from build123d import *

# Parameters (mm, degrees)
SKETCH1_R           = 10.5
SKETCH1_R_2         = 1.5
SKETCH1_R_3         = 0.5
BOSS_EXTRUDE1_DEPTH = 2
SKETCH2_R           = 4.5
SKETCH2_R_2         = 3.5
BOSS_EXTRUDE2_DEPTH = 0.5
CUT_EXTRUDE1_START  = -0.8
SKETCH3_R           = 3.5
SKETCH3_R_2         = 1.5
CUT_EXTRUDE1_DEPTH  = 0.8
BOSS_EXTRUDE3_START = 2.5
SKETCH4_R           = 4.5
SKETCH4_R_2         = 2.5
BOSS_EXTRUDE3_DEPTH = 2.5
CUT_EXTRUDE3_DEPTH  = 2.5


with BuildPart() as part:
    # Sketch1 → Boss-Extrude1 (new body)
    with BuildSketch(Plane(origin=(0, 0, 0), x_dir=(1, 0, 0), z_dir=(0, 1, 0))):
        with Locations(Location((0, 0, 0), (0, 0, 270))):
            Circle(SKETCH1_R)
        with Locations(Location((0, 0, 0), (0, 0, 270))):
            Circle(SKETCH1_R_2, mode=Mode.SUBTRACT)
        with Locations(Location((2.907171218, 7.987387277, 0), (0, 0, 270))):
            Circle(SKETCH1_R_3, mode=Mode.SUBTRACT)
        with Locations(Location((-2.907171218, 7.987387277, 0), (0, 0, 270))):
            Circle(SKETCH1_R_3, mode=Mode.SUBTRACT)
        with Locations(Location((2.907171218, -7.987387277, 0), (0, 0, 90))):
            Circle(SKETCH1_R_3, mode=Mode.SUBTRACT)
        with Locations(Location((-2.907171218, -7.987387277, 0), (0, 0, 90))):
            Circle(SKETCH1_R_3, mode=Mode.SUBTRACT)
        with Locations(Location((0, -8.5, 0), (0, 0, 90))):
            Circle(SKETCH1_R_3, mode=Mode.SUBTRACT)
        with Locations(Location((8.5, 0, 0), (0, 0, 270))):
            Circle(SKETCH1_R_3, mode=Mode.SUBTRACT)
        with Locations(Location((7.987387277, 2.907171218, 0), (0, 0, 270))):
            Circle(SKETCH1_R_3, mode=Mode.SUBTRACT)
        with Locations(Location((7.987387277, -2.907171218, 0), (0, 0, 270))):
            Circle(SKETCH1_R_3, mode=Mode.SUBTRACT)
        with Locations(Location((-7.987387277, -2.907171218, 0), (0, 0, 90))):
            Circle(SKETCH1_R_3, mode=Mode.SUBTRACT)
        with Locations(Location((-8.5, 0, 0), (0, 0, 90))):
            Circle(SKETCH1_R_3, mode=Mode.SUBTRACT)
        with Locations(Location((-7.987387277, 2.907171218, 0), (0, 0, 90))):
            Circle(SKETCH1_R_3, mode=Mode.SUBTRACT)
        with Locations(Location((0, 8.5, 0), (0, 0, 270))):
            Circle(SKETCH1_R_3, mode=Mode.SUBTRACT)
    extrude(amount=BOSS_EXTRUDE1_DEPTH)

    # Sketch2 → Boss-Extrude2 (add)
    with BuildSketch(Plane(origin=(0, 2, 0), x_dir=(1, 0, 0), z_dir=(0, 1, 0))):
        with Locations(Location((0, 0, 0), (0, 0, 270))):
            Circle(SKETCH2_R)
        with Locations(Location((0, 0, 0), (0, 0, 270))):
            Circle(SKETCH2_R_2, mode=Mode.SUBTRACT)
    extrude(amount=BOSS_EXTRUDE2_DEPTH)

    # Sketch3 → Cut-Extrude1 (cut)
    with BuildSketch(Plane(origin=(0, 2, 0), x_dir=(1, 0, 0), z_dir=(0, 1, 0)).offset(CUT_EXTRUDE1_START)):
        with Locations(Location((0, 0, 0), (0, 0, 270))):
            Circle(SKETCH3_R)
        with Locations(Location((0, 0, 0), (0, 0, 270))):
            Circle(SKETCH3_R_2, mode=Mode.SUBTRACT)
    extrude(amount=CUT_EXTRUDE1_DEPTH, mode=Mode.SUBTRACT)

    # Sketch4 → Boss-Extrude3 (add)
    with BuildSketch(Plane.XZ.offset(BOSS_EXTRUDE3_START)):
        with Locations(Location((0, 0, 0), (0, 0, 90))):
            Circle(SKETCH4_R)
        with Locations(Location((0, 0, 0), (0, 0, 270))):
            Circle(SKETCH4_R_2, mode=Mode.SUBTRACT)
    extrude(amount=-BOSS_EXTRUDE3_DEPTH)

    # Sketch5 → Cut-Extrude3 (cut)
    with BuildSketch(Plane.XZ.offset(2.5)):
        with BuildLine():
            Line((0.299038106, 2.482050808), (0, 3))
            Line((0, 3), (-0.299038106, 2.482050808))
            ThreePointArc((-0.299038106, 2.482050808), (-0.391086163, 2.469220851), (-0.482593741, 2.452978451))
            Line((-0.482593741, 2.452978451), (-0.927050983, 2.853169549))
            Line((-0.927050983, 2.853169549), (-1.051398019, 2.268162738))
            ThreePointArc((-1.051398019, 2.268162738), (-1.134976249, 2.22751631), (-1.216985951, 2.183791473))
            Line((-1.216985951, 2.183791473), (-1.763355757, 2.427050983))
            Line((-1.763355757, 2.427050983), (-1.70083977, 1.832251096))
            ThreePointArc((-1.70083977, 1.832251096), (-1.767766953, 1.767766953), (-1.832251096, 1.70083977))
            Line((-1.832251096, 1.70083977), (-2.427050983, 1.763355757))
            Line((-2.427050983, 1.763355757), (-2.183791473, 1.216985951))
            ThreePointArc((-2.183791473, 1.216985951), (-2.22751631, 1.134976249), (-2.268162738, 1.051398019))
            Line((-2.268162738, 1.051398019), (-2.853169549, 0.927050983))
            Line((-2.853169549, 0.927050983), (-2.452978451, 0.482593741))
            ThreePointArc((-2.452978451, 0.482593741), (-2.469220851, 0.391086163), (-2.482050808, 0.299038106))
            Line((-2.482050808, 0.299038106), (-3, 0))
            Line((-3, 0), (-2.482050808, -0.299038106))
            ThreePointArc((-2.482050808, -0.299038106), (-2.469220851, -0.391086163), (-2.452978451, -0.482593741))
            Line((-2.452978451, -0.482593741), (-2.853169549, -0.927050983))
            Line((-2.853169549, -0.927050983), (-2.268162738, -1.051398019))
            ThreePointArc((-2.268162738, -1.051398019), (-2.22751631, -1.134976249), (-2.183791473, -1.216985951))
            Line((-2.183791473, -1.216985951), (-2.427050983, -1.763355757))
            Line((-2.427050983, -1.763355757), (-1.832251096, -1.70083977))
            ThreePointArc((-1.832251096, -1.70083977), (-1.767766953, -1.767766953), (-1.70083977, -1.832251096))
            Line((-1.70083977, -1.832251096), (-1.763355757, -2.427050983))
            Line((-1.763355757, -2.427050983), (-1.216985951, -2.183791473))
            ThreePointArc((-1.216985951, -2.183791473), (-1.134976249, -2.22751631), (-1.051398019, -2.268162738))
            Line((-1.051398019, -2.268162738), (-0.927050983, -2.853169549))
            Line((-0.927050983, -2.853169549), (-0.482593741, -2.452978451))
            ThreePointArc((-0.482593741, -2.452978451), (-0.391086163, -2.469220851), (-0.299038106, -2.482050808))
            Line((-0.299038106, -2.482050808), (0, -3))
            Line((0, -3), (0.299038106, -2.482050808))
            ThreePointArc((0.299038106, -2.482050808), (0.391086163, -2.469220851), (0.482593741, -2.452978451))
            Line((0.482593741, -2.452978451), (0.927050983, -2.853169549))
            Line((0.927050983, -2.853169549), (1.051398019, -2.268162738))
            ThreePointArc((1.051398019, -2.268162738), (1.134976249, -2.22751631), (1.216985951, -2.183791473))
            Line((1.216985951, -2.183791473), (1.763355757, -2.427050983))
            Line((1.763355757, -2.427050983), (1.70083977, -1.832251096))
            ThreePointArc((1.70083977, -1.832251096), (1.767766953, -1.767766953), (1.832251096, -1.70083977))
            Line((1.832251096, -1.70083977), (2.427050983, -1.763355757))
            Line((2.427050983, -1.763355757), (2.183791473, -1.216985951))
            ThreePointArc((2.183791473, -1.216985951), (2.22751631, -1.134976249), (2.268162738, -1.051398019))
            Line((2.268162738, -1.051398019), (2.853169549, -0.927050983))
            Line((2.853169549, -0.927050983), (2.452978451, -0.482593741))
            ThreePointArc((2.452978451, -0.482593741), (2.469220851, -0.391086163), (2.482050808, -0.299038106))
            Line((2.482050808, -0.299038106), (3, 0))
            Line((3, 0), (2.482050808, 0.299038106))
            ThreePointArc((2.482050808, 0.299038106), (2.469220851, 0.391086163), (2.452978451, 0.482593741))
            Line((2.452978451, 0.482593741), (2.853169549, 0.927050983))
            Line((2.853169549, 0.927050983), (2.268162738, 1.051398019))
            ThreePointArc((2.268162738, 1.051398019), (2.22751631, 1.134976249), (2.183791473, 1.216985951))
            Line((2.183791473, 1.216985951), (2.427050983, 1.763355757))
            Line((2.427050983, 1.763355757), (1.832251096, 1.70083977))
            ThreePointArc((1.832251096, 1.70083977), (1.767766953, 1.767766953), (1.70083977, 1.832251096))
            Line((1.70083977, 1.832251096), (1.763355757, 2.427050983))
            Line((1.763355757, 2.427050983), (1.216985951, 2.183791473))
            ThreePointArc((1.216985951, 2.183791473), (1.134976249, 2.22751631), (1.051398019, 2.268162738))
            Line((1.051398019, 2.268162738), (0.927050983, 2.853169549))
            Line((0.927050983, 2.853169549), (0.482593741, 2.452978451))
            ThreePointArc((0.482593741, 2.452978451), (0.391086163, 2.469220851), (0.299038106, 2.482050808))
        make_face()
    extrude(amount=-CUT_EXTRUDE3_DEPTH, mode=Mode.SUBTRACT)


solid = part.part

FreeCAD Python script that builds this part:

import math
import FreeCAD as App
import Part
import Sketcher
Q = App.Units.Quantity

doc = App.newDocument("Part")
params = doc.addObject("Spreadsheet::Sheet", "Params")
for row, (alias, value) in enumerate([
    ("sketch1_diameter", "21 mm"),
    ("sketch1_diameter2", "1 mm"),
    ("sketch1_diameter3", "3 mm"),
    ("pad1_length", "2 mm"),
    ("sketch2_diameter", "9 mm"),
    ("sketch2_diameter2", "7 mm"),
    ("pad2_length", "0.5 mm"),
    ("sketch3_diameter", "7 mm"),
    ("sketch3_diameter2", "3 mm"),
    ("pocket1_length", "0.8 mm"),
    ("sketch4_diameter", "9 mm"),
    ("sketch4_diameter2", "5 mm"),
    ("pad3_length", "2.5 mm"),
    ("sketch5_radius", "2.500001 mm"),
    ("pocket2_length", "2.5 mm"),
], start=1):
    params.set(f"A{row}", alias)
    params.set(f"B{row}", "=" + value)
    params.setAlias(f"B{row}", alias)

body = doc.addObject("PartDesign::Body", "Body")

sketch1 = doc.addObject("Sketcher::SketchObject", "Sketch")
body.addObject(sketch1)
sketch1.AttachmentSupport = (doc.XZ_Plane, [""])
sketch1.MapMode = "FlatFace"
sketch1.addGeometry([
    Part.Circle(App.Vector(0, 0, 0), App.Vector(0, 0, 1), 10.5),
    Part.Circle(App.Vector(-8, -2.9, 0), App.Vector(0, 0, 1), 0.5),
    Part.Circle(App.Vector(-2.9, -8, 0), App.Vector(0, 0, 1), 0.5),
    Part.Circle(App.Vector(0, -8.5, 0), App.Vector(0, 0, 1), 0.5),
    Part.Circle(App.Vector(-8.5, 0, 0), App.Vector(0, 0, 1), 0.5),
    Part.Circle(App.Vector(-8, 2.9, 0), App.Vector(0, 0, 1), 0.5),
    Part.Circle(App.Vector(-2.9, 8, 0), App.Vector(0, 0, 1), 0.5),
    Part.Circle(App.Vector(2.9, -8, 0), App.Vector(0, 0, 1), 0.5),
    Part.Circle(App.Vector(8, -2.9, 0), App.Vector(0, 0, 1), 0.5),
    Part.Circle(App.Vector(8.5, 0, 0), App.Vector(0, 0, 1), 0.5),
    Part.Circle(App.Vector(0, 0, 0), App.Vector(0, 0, 1), 1.5),
    Part.Circle(App.Vector(0, 8.5, 0), App.Vector(0, 0, 1), 0.5),
    Part.Circle(App.Vector(2.9, 8, 0), App.Vector(0, 0, 1), 0.5),
    Part.Circle(App.Vector(8, 2.9, 0), App.Vector(0, 0, 1), 0.5),
], False)
sketch1.addConstraint([
    Sketcher.Constraint("Coincident", 0, 3, -1, 1),
    Sketcher.Constraint("Coincident", 10, 3, -1, 1),
    Sketcher.Constraint("Equal", 1, 2),
    Sketcher.Constraint("Equal", 2, 3),
    Sketcher.Constraint("Equal", 3, 4),
    Sketcher.Constraint("Equal", 4, 5),
    Sketcher.Constraint("Equal", 5, 6),
    Sketcher.Constraint("Equal", 6, 7),
    Sketcher.Constraint("Equal", 7, 8),
    Sketcher.Constraint("Equal", 8, 9),
    Sketcher.Constraint("Equal", 9, 11),
    Sketcher.Constraint("Equal", 11, 12),
    Sketcher.Constraint("Equal", 12, 13),
    Sketcher.Constraint("Symmetric", 6, 3, 7, 3, -1, 1),
    Sketcher.Constraint("Symmetric", 5, 3, 8, 3, -1, 1),
    Sketcher.Constraint("Symmetric", 4, 3, 9, 3, -1, 1),
    Sketcher.Constraint("Symmetric", 3, 3, 11, 3, -1, 1),
    Sketcher.Constraint("Symmetric", 2, 3, 12, 3, -1, 1),
    Sketcher.Constraint("Symmetric", 1, 3, 13, 3, -1, 1),
    Sketcher.Constraint("Symmetric", 2, 3, 7, 3, -2),
    Sketcher.Constraint("Symmetric", 1, 3, 8, 3, -2),
    Sketcher.Constraint("PointOnObject", 3, 3, -2),
    Sketcher.Constraint("PointOnObject", 4, 3, -1),
    Sketcher.Constraint("Diameter", 0, 21.0),
    Sketcher.Constraint("Diameter", 1, 1.0),
    Sketcher.Constraint("Diameter", 10, 3.0),
    Sketcher.Constraint("DistanceY", 3, 3, -1, 1, 8.5),
    Sketcher.Constraint("DistanceX", 4, 3, -1, 1, 8.5),
    Sketcher.Constraint("DistanceY", 1, 3, -1, 1, 2.907171),
    Sketcher.Constraint("DistanceX", 2, 3, -1, 1, 2.907171),
    Sketcher.Constraint("DistanceY", 2, 3, 5, 3, 10.894558),
    Sketcher.Constraint("DistanceX", 1, 3, 7, 3, 10.894558),
])
sketch1.setExpression("Constraints[23]", "Params.sketch1_diameter")
sketch1.setExpression("Constraints[24]", "Params.sketch1_diameter2")
sketch1.setExpression("Constraints[25]", "Params.sketch1_diameter3")
pad1 = doc.addObject("PartDesign::Pad", "Pad")
body.addObject(pad1)
pad1.Profile = sketch1
pad1.setExpression("Length", "Params.pad1_length")
pad1.Reversed = True

sketch2 = doc.addObject("Sketcher::SketchObject", "Sketch001")
body.addObject(sketch2)
sketch2.AttachmentSupport = (doc.XZ_Plane, [""])
sketch2.MapMode = "FlatFace"
sketch2.AttachmentOffset = App.Placement(App.Vector(0, 0, -2), App.Rotation())
sketch2.addGeometry([
    Part.Circle(App.Vector(0, 0, 0), App.Vector(0, 0, 1), 4.5),
    Part.Circle(App.Vector(0, 0, 0), App.Vector(0, 0, 1), 3.5),
], False)
sketch2.addConstraint([
    Sketcher.Constraint("Coincident", 0, 3, -1, 1),
    Sketcher.Constraint("Coincident", 1, 3, -1, 1),
    Sketcher.Constraint("Diameter", 0, 9.0),
    Sketcher.Constraint("Diameter", 1, 7.0),
])
sketch2.setExpression("Constraints[2]", "Params.sketch2_diameter")
sketch2.setExpression("Constraints[3]", "Params.sketch2_diameter2")
pad2 = doc.addObject("PartDesign::Pad", "Pad001")
body.addObject(pad2)
pad2.Profile = sketch2
pad2.setExpression("Length", "Params.pad2_length")
pad2.Reversed = True

sketch3 = doc.addObject("Sketcher::SketchObject", "Sketch002")
body.addObject(sketch3)
sketch3.AttachmentSupport = (doc.XZ_Plane, [""])
sketch3.MapMode = "FlatFace"
sketch3.AttachmentOffset = App.Placement(App.Vector(0, 0, -1.2), App.Rotation())
sketch3.addGeometry([
    Part.Circle(App.Vector(0, 0, 0), App.Vector(0, 0, 1), 3.5),
    Part.Circle(App.Vector(0, 0, 0), App.Vector(0, 0, 1), 1.5),
], False)
sketch3.addConstraint([
    Sketcher.Constraint("Coincident", 0, 3, -1, 1),
    Sketcher.Constraint("Coincident", 1, 3, -1, 1),
    Sketcher.Constraint("Diameter", 0, 7.0),
    Sketcher.Constraint("Diameter", 1, 3.0),
])
sketch3.setExpression("Constraints[2]", "Params.sketch3_diameter")
sketch3.setExpression("Constraints[3]", "Params.sketch3_diameter2")
pocket1 = doc.addObject("PartDesign::Pocket", "Pocket")
body.addObject(pocket1)
pocket1.Profile = sketch3
pocket1.setExpression("Length", "Params.pocket1_length")

sketch4 = doc.addObject("Sketcher::SketchObject", "Sketch003")
body.addObject(sketch4)
sketch4.AttachmentSupport = (doc.XZ_Plane, [""])
sketch4.MapMode = "FlatFace"
sketch4.AttachmentOffset = App.Placement(App.Vector(0, 0, 2.5), App.Rotation())
sketch4.addGeometry([
    Part.Circle(App.Vector(0, 0, 0), App.Vector(0, 0, 1), 4.5),
    Part.Circle(App.Vector(0, 0, 0), App.Vector(0, 0, 1), 2.5),
], False)
sketch4.addConstraint([
    Sketcher.Constraint("Coincident", 0, 3, -1, 1),
    Sketcher.Constraint("Coincident", 1, 3, -1, 1),
    Sketcher.Constraint("Diameter", 0, 9.0),
    Sketcher.Constraint("Diameter", 1, 5.0),
])
sketch4.setExpression("Constraints[2]", "Params.sketch4_diameter")
sketch4.setExpression("Constraints[3]", "Params.sketch4_diameter2")
pad3 = doc.addObject("PartDesign::Pad", "Pad002")
body.addObject(pad3)
pad3.Profile = sketch4
pad3.setExpression("Length", "Params.pad3_length")
pad3.Reversed = True

sketch5 = doc.addObject("Sketcher::SketchObject", "Sketch004")
body.addObject(sketch5)
sketch5.AttachmentSupport = (doc.XZ_Plane, [""])
sketch5.MapMode = "FlatFace"
sketch5.AttachmentOffset = App.Placement(App.Vector(0, 0, 2.5), App.Rotation())
sketch5.addGeometry([
    Part.LineSegment(App.Vector(0.3, 2.48, 0), App.Vector(0, 3, 0)),
    Part.LineSegment(App.Vector(0, 3, 0), App.Vector(-0.3, 2.48, 0)),
    Part.ArcOfCircle(Part.Circle(App.Vector(0, 0, 0), App.Vector(0, 0, 1), 2.5), math.radians(96.87), math.radians(101.13)),
    Part.LineSegment(App.Vector(-0.48, 2.45, 0), App.Vector(-0.93, 2.85, 0)),
    Part.LineSegment(App.Vector(-0.93, 2.85, 0), App.Vector(-1.05, 2.27, 0)),
    Part.ArcOfCircle(Part.Circle(App.Vector(0, 0, 0), App.Vector(0, 0, 1), 2.5), math.radians(114.87), math.radians(119.13)),
    Part.LineSegment(App.Vector(-1.22, 2.18, 0), App.Vector(-1.76, 2.43, 0)),
    Part.LineSegment(App.Vector(-1.76, 2.43, 0), App.Vector(-1.7, 1.83, 0)),
    Part.ArcOfCircle(Part.Circle(App.Vector(0, 0, 0), App.Vector(0, 0, 1), 2.5), math.radians(132.87), math.radians(137.13)),
    Part.LineSegment(App.Vector(-1.83, 1.7, 0), App.Vector(-2.43, 1.76, 0)),
    Part.LineSegment(App.Vector(-2.43, 1.76, 0), App.Vector(-2.18, 1.22, 0)),
    Part.ArcOfCircle(Part.Circle(App.Vector(0, 0, 0), App.Vector(0, 0, 1), 2.5), math.radians(150.87), math.radians(155.13)),
    Part.LineSegment(App.Vector(-2.27, 1.05, 0), App.Vector(-2.85, 0.93, 0)),
    Part.LineSegment(App.Vector(-2.85, 0.93, 0), App.Vector(-2.45, 0.48, 0)),
    Part.ArcOfCircle(Part.Circle(App.Vector(0, 0, 0), App.Vector(0, 0, 1), 2.5), math.radians(168.87), math.radians(173.13)),
    Part.LineSegment(App.Vector(-2.48, 0.3, 0), App.Vector(-3, 0, 0)),
    Part.LineSegment(App.Vector(-3, 0, 0), App.Vector(-2.48, -0.3, 0)),
    Part.ArcOfCircle(Part.Circle(App.Vector(0, 0, 0), App.Vector(0, 0, 1), 2.5), math.radians(-173.13), math.radians(-168.87)),
    Part.LineSegment(App.Vector(-2.45, -0.48, 0), App.Vector(-2.85, -0.93, 0)),
    Part.LineSegment(App.Vector(-2.85, -0.93, 0), App.Vector(-2.27, -1.05, 0)),
    Part.ArcOfCircle(Part.Circle(App.Vector(0, 0, 0), App.Vector(0, 0, 1), 2.5), math.radians(-155.13), math.radians(-150.87)),
    Part.LineSegment(App.Vector(-2.18, -1.22, 0), App.Vector(-2.43, -1.76, 0)),
    Part.LineSegment(App.Vector(-2.43, -1.76, 0), App.Vector(-1.83, -1.7, 0)),
    Part.ArcOfCircle(Part.Circle(App.Vector(0, 0, 0), App.Vector(0, 0, 1), 2.5), math.radians(-137.13), math.radians(-132.87)),
    Part.LineSegment(App.Vector(-1.7, -1.83, 0), App.Vector(-1.76, -2.43, 0)),
    Part.LineSegment(App.Vector(-1.76, -2.43, 0), App.Vector(-1.22, -2.18, 0)),
    Part.ArcOfCircle(Part.Circle(App.Vector(0, 0, 0), App.Vector(0, 0, 1), 2.5), math.radians(-119.13), math.radians(-114.87)),
    Part.LineSegment(App.Vector(-1.05, -2.27, 0), App.Vector(-0.93, -2.85, 0)),
    Part.LineSegment(App.Vector(-0.93, -2.85, 0), App.Vector(-0.48, -2.45, 0)),
    Part.ArcOfCircle(Part.Circle(App.Vector(0, 0, 0), App.Vector(0, 0, 1), 2.5), math.radians(-101.13), math.radians(-96.87)),
    Part.LineSegment(App.Vector(-0.3, -2.48, 0), App.Vector(0, -3, 0)),
    Part.LineSegment(App.Vector(0, -3, 0), App.Vector(0.3, -2.48, 0)),
    Part.ArcOfCircle(Part.Circle(App.Vector(0, 0, 0), App.Vector(0, 0, 1), 2.5), math.radians(-83.13), math.radians(-78.87)),
    Part.LineSegment(App.Vector(0.48, -2.45, 0), App.Vector(0.93, -2.85, 0)),
    Part.LineSegment(App.Vector(0.93, -2.85, 0), App.Vector(1.05, -2.27, 0)),
    Part.ArcOfCircle(Part.Circle(App.Vector(0, 0, 0), App.Vector(0, 0, 1), 2.5), math.radians(-65.13), math.radians(-60.87)),
    Part.LineSegment(App.Vector(1.22, -2.18, 0), App.Vector(1.76, -2.43, 0)),
    Part.LineSegment(App.Vector(1.76, -2.43, 0), App.Vector(1.7, -1.83, 0)),
    Part.ArcOfCircle(Part.Circle(App.Vector(0, 0, 0), App.Vector(0, 0, 1), 2.5), math.radians(-47.13), math.radians(-42.87)),
    Part.LineSegment(App.Vector(1.83, -1.7, 0), App.Vector(2.43, -1.76, 0)),
    Part.LineSegment(App.Vector(2.43, -1.76, 0), App.Vector(2.18, -1.22, 0)),
    Part.ArcOfCircle(Part.Circle(App.Vector(0, 0, 0), App.Vector(0, 0, 1), 2.5), math.radians(-29.13), math.radians(-24.87)),
    Part.LineSegment(App.Vector(2.27, -1.05, 0), App.Vector(2.85, -0.93, 0)),
    Part.LineSegment(App.Vector(2.85, -0.93, 0), App.Vector(2.45, -0.48, 0)),
    Part.ArcOfCircle(Part.Circle(App.Vector(0, 0, 0), App.Vector(0, 0, 1), 2.5), math.radians(-11.13), math.radians(-6.87)),
    Part.LineSegment(App.Vector(2.48, -0.3, 0), App.Vector(3, 0, 0)),
    Part.LineSegment(App.Vector(3, 0, 0), App.Vector(2.48, 0.3, 0)),
    Part.ArcOfCircle(Part.Circle(App.Vector(0, 0, 0), App.Vector(0, 0, 1), 2.5), math.radians(6.87), math.radians(11.13)),
    Part.LineSegment(App.Vector(2.45, 0.48, 0), App.Vector(2.85, 0.93, 0)),
    Part.LineSegment(App.Vector(2.85, 0.93, 0), App.Vector(2.27, 1.05, 0)),
    Part.ArcOfCircle(Part.Circle(App.Vector(0, 0, 0), App.Vector(0, 0, 1), 2.5), math.radians(24.87), math.radians(29.13)),
    Part.LineSegment(App.Vector(2.18, 1.22, 0), App.Vector(2.43, 1.76, 0)),
    Part.LineSegment(App.Vector(2.43, 1.76, 0), App.Vector(1.83, 1.7, 0)),
    Part.ArcOfCircle(Part.Circle(App.Vector(0, 0, 0), App.Vector(0, 0, 1), 2.5), math.radians(42.87), math.radians(47.13)),
    Part.LineSegment(App.Vector(1.7, 1.83, 0), App.Vector(1.76, 2.43, 0)),
    Part.LineSegment(App.Vector(1.76, 2.43, 0), App.Vector(1.22, 2.18, 0)),
    Part.ArcOfCircle(Part.Circle(App.Vector(0, 0, 0), App.Vector(0, 0, 1), 2.5), math.radians(60.87), math.radians(65.13)),
    Part.LineSegment(App.Vector(1.05, 2.27, 0), App.Vector(0.93, 2.85, 0)),
    Part.LineSegment(App.Vector(0.93, 2.85, 0), App.Vector(0.48, 2.45, 0)),
    Part.ArcOfCircle(Part.Circle(App.Vector(0, 0, 0), App.Vector(0, 0, 1), 2.5), math.radians(78.87), math.radians(83.13)),
], False)
sketch5.addConstraint([
    Sketcher.Constraint("Coincident", 0, 2, 1, 1),
    Sketcher.Constraint("Coincident", 1, 2, 2, 1),
    Sketcher.Constraint("Coincident", 2, 2, 3, 1),
    Sketcher.Constraint("Coincident", 3, 2, 4, 1),
    Sketcher.Constraint("Coincident", 4, 2, 5, 1),
    Sketcher.Constraint("Coincident", 5, 2, 6, 1),
    Sketcher.Constraint("Coincident", 6, 2, 7, 1),
    Sketcher.Constraint("Coincident", 7, 2, 8, 1),
    Sketcher.Constraint("Coincident", 8, 2, 9, 1),
    Sketcher.Constraint("Coincident", 9, 2, 10, 1),
    Sketcher.Constraint("Coincident", 10, 2, 11, 1),
    Sketcher.Constraint("Coincident", 11, 2, 12, 1),
    Sketcher.Constraint("Coincident", 12, 2, 13, 1),
    Sketcher.Constraint("Coincident", 13, 2, 14, 1),
    Sketcher.Constraint("Coincident", 14, 2, 15, 1),
    Sketcher.Constraint("Coincident", 15, 2, 16, 1),
    Sketcher.Constraint("Coincident", 16, 2, 17, 1),
    Sketcher.Constraint("Coincident", 17, 2, 18, 1),
    Sketcher.Constraint("Coincident", 18, 2, 19, 1),
    Sketcher.Constraint("Coincident", 19, 2, 20, 1),
    Sketcher.Constraint("Coincident", 20, 2, 21, 1),
    Sketcher.Constraint("Coincident", 21, 2, 22, 1),
    Sketcher.Constraint("Coincident", 22, 2, 23, 1),
    Sketcher.Constraint("Coincident", 23, 2, 24, 1),
    Sketcher.Constraint("Coincident", 24, 2, 25, 1),
    Sketcher.Constraint("Coincident", 25, 2, 26, 1),
    Sketcher.Constraint("Coincident", 26, 2, 27, 1),
    Sketcher.Constraint("Coincident", 27, 2, 28, 1),
    Sketcher.Constraint("Coincident", 28, 2, 29, 1),
    Sketcher.Constraint("Coincident", 29, 2, 30, 1),
    Sketcher.Constraint("Coincident", 30, 2, 31, 1),
    Sketcher.Constraint("Coincident", 31, 2, 32, 1),
    Sketcher.Constraint("Coincident", 32, 2, 33, 1),
    Sketcher.Constraint("Coincident", 33, 2, 34, 1),
    Sketcher.Constraint("Coincident", 34, 2, 35, 1),
    Sketcher.Constraint("Coincident", 35, 2, 36, 1),
    Sketcher.Constraint("Coincident", 36, 2, 37, 1),
    Sketcher.Constraint("Coincident", 37, 2, 38, 1),
    Sketcher.Constraint("Coincident", 38, 2, 39, 1),
    Sketcher.Constraint("Coincident", 39, 2, 40, 1),
    Sketcher.Constraint("Coincident", 40, 2, 41, 1),
    Sketcher.Constraint("Coincident", 41, 2, 42, 1),
    Sketcher.Constraint("Coincident", 42, 2, 43, 1),
    Sketcher.Constraint("Coincident", 43, 2, 44, 1),
    Sketcher.Constraint("Coincident", 44, 2, 45, 1),
    Sketcher.Constraint("Coincident", 45, 2, 46, 1),
    Sketcher.Constraint("Coincident", 46, 2, 47, 1),
    Sketcher.Constraint("Coincident", 47, 2, 48, 1),
    Sketcher.Constraint("Coincident", 48, 2, 49, 1),
    Sketcher.Constraint("Coincident", 49, 2, 50, 1),
    Sketcher.Constraint("Coincident", 50, 2, 51, 1),
    Sketcher.Constraint("Coincident", 51, 2, 52, 1),
    Sketcher.Constraint("Coincident", 52, 2, 53, 1),
    Sketcher.Constraint("Coincident", 53, 2, 54, 1),
    Sketcher.Constraint("Coincident", 54, 2, 55, 1),
    Sketcher.Constraint("Coincident", 55, 2, 56, 1),
    Sketcher.Constraint("Coincident", 56, 2, 57, 1),
    Sketcher.Constraint("Coincident", 57, 2, 58, 1),
    Sketcher.Constraint("Coincident", 58, 2, 59, 1),
    Sketcher.Constraint("Coincident", 59, 2, 0, 1),
    Sketcher.Constraint("Coincident", 2, 3, -1, 1),
    Sketcher.Constraint("Coincident", 5, 3, -1, 1),
    Sketcher.Constraint("Coincident", 8, 3, -1, 1),
    Sketcher.Constraint("Coincident", 11, 3, -1, 1),
    Sketcher.Constraint("Coincident", 14, 3, -1, 1),
    Sketcher.Constraint("Coincident", 17, 3, -1, 1),
    Sketcher.Constraint("Coincident", 20, 3, -1, 1),
    Sketcher.Constraint("Coincident", 23, 3, -1, 1),
    Sketcher.Constraint("Coincident", 26, 3, -1, 1),
    Sketcher.Constraint("Coincident", 29, 3, -1, 1),
    Sketcher.Constraint("Coincident", 32, 3, -1, 1),
    Sketcher.Constraint("Coincident", 35, 3, -1, 1),
    Sketcher.Constraint("Coincident", 38, 3, -1, 1),
    Sketcher.Constraint("Coincident", 41, 3, -1, 1),
    Sketcher.Constraint("Coincident", 44, 3, -1, 1),
    Sketcher.Constraint("Coincident", 47, 3, -1, 1),
    Sketcher.Constraint("Coincident", 50, 3, -1, 1),
    Sketcher.Constraint("Coincident", 53, 3, -1, 1),
    Sketcher.Constraint("Coincident", 56, 3, -1, 1),
    Sketcher.Constraint("Coincident", 59, 3, -1, 1),
    Sketcher.Constraint("Equal", 2, 5),
    Sketcher.Constraint("Equal", 5, 8),
    Sketcher.Constraint("Equal", 8, 11),
    Sketcher.Constraint("Equal", 11, 14),
    Sketcher.Constraint("Equal", 14, 17),
    Sketcher.Constraint("Equal", 17, 20),
    Sketcher.Constraint("Equal", 20, 23),
    Sketcher.Constraint("Equal", 23, 26),
    Sketcher.Constraint("Equal", 26, 29),
    Sketcher.Constraint("Equal", 29, 32),
    Sketcher.Constraint("Equal", 32, 35),
    Sketcher.Constraint("Equal", 35, 38),
    Sketcher.Constraint("Equal", 38, 41),
    Sketcher.Constraint("Equal", 41, 44),
    Sketcher.Constraint("Equal", 44, 47),
    Sketcher.Constraint("Equal", 47, 50),
    Sketcher.Constraint("Equal", 50, 53),
    Sketcher.Constraint("Equal", 53, 56),
    Sketcher.Constraint("Equal", 56, 59),
    Sketcher.Constraint("Symmetric", 0, 2, 30, 2, -1, 1),
    Sketcher.Constraint("Symmetric", 3, 2, 33, 2, -1, 1),
    Sketcher.Constraint("Symmetric", 6, 2, 36, 2, -1, 1),
    Sketcher.Constraint("Symmetric", 9, 2, 39, 2, -1, 1),
    Sketcher.Constraint("Symmetric", 12, 2, 42, 2, -1, 1),
    Sketcher.Constraint("Symmetric", 15, 2, 45, 2, -1, 1),
    Sketcher.Constraint("Symmetric", 18, 2, 48, 2, -1, 1),
    Sketcher.Constraint("Symmetric", 21, 2, 51, 2, -1, 1),
    Sketcher.Constraint("Symmetric", 24, 2, 54, 2, -1, 1),
    Sketcher.Constraint("Symmetric", 27, 2, 57, 2, -1, 1),
    Sketcher.Constraint("Symmetric", 27, 2, 33, 2, -2),
    Sketcher.Constraint("Symmetric", 24, 2, 36, 2, -2),
    Sketcher.Constraint("Symmetric", 21, 2, 39, 2, -2),
    Sketcher.Constraint("Symmetric", 18, 2, 42, 2, -2),
    Sketcher.Constraint("PointOnObject", 0, 2, -2),
    Sketcher.Constraint("PointOnObject", 15, 2, -1),
    Sketcher.Constraint("Perpendicular", 0, 15),
    Sketcher.Constraint("Perpendicular", 1, 16),
    Sketcher.Constraint("Perpendicular", 3, 18),
    Sketcher.Constraint("Perpendicular", 4, 19),
    Sketcher.Constraint("Perpendicular", 6, 21),
    Sketcher.Constraint("Perpendicular", 7, 22),
    Sketcher.Constraint("Perpendicular", 9, 24),
    Sketcher.Constraint("Perpendicular", 10, 25),
    Sketcher.Constraint("Perpendicular", 12, 27),
    Sketcher.Constraint("Perpendicular", 13, 28),
    Sketcher.Constraint("Perpendicular", 15, 30),
    Sketcher.Constraint("Perpendicular", 16, 31),
    Sketcher.Constraint("Perpendicular", 18, 33),
    Sketcher.Constraint("Perpendicular", 19, 34),
    Sketcher.Constraint("Perpendicular", 21, 36),
    Sketcher.Constraint("Perpendicular", 22, 37),
    Sketcher.Constraint("Perpendicular", 24, 39),
    Sketcher.Constraint("Perpendicular", 25, 40),
    Sketcher.Constraint("Perpendicular", 27, 42),
    Sketcher.Constraint("Perpendicular", 28, 43),
    Sketcher.Constraint("Perpendicular", 30, 45),
    Sketcher.Constraint("Perpendicular", 31, 46),
    Sketcher.Constraint("Perpendicular", 33, 48),
    Sketcher.Constraint("Perpendicular", 34, 49),
    Sketcher.Constraint("Perpendicular", 36, 51),
    Sketcher.Constraint("Perpendicular", 37, 52),
    Sketcher.Constraint("Perpendicular", 39, 54),
    Sketcher.Constraint("Perpendicular", 40, 55),
    Sketcher.Constraint("Perpendicular", 42, 57),
    Sketcher.Constraint("Perpendicular", 43, 58),
    Sketcher.Constraint("Horizontal", 29, 2, 31, 2),
    Sketcher.Constraint("Horizontal", 28, 2, 32, 2),
    Sketcher.Constraint("Horizontal", 26, 2, 34, 2),
    Sketcher.Constraint("Horizontal", 25, 2, 35, 2),
    Sketcher.Constraint("Horizontal", 23, 2, 37, 2),
    Sketcher.Constraint("Equal", 1, 3),
    Sketcher.Constraint("Equal", 3, 4),
    Sketcher.Constraint("Equal", 4, 6),
    Sketcher.Constraint("Equal", 6, 7),
    Sketcher.Constraint("Equal", 7, 9),
    Sketcher.Constraint("Equal", 9, 10),
    Sketcher.Constraint("Equal", 10, 12),
    Sketcher.Constraint("Equal", 12, 13),
    Sketcher.Constraint("Equal", 13, 15),
    Sketcher.Constraint("Radius", 2, 2.500001),
    Sketcher.Constraint("Angle", 0, Q("120 deg")),
    Sketcher.Constraint("Angle", 3, Q("138 deg")),
    Sketcher.Constraint("Angle", 4, Q("-102 deg")),
    Sketcher.Constraint("Angle", 6, Q("156 deg")),
    Sketcher.Constraint("Angle", 7, Q("-84 deg")),
    Sketcher.Constraint("DistanceY", -1, 1, 0, 2, 3.0),
])
sketch5.setExpression("Constraints[159]", "Params.sketch5_radius")
pocket2 = doc.addObject("PartDesign::Pocket", "Pocket001")
body.addObject(pocket2)
pocket2.Profile = sketch5
pocket2.setExpression("Length", "Params.pocket2_length")

doc.recompute()
